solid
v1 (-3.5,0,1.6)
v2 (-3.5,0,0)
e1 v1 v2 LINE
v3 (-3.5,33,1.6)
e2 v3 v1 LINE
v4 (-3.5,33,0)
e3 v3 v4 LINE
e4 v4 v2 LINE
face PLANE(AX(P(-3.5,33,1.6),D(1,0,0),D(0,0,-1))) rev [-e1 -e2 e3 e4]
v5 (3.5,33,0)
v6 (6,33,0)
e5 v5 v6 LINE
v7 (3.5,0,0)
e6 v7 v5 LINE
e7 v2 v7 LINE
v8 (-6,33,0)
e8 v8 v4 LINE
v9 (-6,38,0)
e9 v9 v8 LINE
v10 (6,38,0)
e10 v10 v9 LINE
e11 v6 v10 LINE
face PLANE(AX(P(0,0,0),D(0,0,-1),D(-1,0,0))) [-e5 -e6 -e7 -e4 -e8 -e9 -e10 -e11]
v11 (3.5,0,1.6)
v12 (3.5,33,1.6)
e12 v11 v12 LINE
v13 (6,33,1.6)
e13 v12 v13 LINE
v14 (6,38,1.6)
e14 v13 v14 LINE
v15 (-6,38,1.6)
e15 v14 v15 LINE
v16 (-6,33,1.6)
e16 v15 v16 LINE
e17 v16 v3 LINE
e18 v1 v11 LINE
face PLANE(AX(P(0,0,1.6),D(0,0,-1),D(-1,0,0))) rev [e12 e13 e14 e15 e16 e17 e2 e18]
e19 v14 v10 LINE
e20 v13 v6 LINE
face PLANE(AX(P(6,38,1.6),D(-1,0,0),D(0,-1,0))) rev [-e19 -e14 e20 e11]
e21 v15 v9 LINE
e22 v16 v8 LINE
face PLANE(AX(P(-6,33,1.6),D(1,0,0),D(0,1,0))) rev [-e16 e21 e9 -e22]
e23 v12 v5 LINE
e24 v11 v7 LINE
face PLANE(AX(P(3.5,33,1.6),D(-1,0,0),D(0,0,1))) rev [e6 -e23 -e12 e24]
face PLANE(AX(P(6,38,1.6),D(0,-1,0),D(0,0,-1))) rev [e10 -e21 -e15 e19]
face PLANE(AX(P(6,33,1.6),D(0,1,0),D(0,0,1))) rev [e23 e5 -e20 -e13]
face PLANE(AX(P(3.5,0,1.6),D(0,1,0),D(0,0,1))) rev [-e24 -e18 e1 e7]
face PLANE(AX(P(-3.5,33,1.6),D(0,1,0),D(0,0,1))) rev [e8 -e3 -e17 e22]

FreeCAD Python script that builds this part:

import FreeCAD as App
import Part
import Sketcher

doc = App.newDocument("Part")
body = doc.addObject("PartDesign::Body", "Body")

sketch1 = doc.addObject("Sketcher::SketchObject", "Sketch")
body.addObject(sketch1)
sketch1.AttachmentSupport = (doc.XY_Plane, [""])
sketch1.MapMode = "FlatFace"
sketch1.addGeometry(Part.LineSegment(App.Vector(-6, 33, 0), App.Vector(-3.5, 33, 0)), False)
sketch1.addGeometry(Part.LineSegment(App.Vector(-3.5, 33, 0), App.Vector(-3.5, 0, 0)), False)
sketch1.addGeometry(Part.LineSegment(App.Vector(-3.5, 0, 0), App.Vector(3.5, 0, 0)), False)
sketch1.addGeometry(Part.LineSegment(App.Vector(3.5, 0, 0), App.Vector(3.5, 33, 0)), False)
sketch1.addGeometry(Part.LineSegment(App.Vector(3.5, 33, 0), App.Vector(6, 33, 0)), False)
sketch1.addGeometry(Part.LineSegment(App.Vector(6, 33, 0), App.Vector(6, 38, 0)), False)
sketch1.addGeometry(Part.LineSegment(App.Vector(6, 38, 0), App.Vector(-6, 38, 0)), False)
sketch1.addGeometry(Part.LineSegment(App.Vector(-6, 38, 0), App.Vector(-6, 33, 0)), False)
sketch1.addConstraint(Sketcher.Constraint("Coincident", 0, 2, 1, 1))
sketch1.addConstraint(Sketcher.Constraint("Coincident", 1, 2, 2, 1))
sketch1.addConstraint(Sketcher.Constraint("Coincident", 2, 2, 3, 1))
sketch1.addConstraint(Sketcher.Constraint("Coincident", 3, 2, 4, 1))
sketch1.addConstraint(Sketcher.Constraint("Coincident", 4, 2, 5, 1))
sketch1.addConstraint(Sketcher.Constraint("Coincident", 5, 2, 6, 1))
sketch1.addConstraint(Sketcher.Constraint("Coincident", 6, 2, 7, 1))
sketch1.addConstraint(Sketcher.Constraint("Coincident", 7, 2, 0, 1))
sketch1.addConstraint(Sketcher.Constraint("Horizontal", 0))
sketch1.addConstraint(Sketcher.Constraint("Vertical", 1))
sketch1.addConstraint(Sketcher.Constraint("Horizontal", 2))
sketch1.addConstraint(Sketcher.Constraint("Vertical", 3))
sketch1.addConstraint(Sketcher.Constraint("Horizontal", 4))
sketch1.addConstraint(Sketcher.Constraint("Vertical", 5))
sketch1.addConstraint(Sketcher.Constraint("Horizontal", 6))
sketch1.addConstraint(Sketcher.Constraint("Vertical", 7))
sketch1.addConstraint(Sketcher.Constraint("Symmetric", 1, 2, 2, 2, -1, 1))
sketch1.addConstraint(Sketcher.Constraint("Symmetric", 4, 2, 7, 2, -2))
sketch1.addConstraint(Sketcher.Constraint("DistanceX", 2, 1, 2, 2, 7.0))
sketch1.addConstraint(Sketcher.Constraint("DistanceX", 6, 2, 6, 1, 12.0))
sketch1.addConstraint(Sketcher.Constraint("DistanceY", 1, 2, 1, 1, 33.0))
sketch1.addConstraint(Sketcher.Constraint("DistanceY", 5, 1, 5, 2, 5.0))
pad1 = doc.addObject("PartDesign::Pad", "Pad")
body.addObject(pad1)
pad1.Profile = sketch1
pad1.Length = 1.6

doc.recompute()
